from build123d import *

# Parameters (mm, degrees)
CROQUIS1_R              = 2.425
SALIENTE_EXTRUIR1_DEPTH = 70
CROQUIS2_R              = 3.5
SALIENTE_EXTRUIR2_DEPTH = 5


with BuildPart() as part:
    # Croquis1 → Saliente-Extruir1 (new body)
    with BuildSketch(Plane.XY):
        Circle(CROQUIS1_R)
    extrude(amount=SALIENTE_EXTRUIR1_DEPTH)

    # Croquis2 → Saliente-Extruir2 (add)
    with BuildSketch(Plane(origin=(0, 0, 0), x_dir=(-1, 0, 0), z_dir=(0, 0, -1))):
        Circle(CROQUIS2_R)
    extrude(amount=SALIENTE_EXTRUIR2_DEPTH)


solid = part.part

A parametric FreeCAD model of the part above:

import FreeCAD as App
import Part
import Sketcher
from FreeCAD import Vector
Q = App.Units.Quantity

doc = App.newDocument("Part")
body = doc.addObject("PartDesign::Body", "Body")

sketch1 = doc.addObject("Sketcher::SketchObject", "Sketch")
body.addObject(sketch1)
sketch1.AttachmentSupport = (doc.XY_Plane, [""])
sketch1.MapMode = "FlatFace"
sketch1.addGeometry(Part.Circle(Vector(0, 0, 0), Vector(0, 0, 1), 2.425), False)
sketch1.addConstraint(Sketcher.Constraint("Coincident", 0, 3, -1, 1))
sketch1.addConstraint(Sketcher.Constraint("Diameter", 0, Q("4.85 mm")))
pad1 = doc.addObject("PartDesign::Pad", "Pad")
body.addObject(pad1)
pad1.Profile = sketch1
pad1.Length = 70

sketch2 = doc.addObject("Sketcher::SketchObject", "Sketch001")
body.addObject(sketch2)
sketch2.AttachmentSupport = (doc.XY_Plane, [""])
sketch2.MapMode = "FlatFace"
sketch2.addGeometry(Part.Circle(Vector(0, 0, 0), Vector(0, 0, 1), 3.5), False)
sketch2.addConstraint(Sketcher.Constraint("Coincident", 0, 3, -1, 1))
sketch2.addConstraint(Sketcher.Constraint("Diameter", 0, Q("7 mm")))
pad2 = doc.addObject("PartDesign::Pad", "Pad001")
body.addObject(pad2)
pad2.Profile = sketch2
pad2.Length = 5
pad2.Reversed = True

doc.recompute()
